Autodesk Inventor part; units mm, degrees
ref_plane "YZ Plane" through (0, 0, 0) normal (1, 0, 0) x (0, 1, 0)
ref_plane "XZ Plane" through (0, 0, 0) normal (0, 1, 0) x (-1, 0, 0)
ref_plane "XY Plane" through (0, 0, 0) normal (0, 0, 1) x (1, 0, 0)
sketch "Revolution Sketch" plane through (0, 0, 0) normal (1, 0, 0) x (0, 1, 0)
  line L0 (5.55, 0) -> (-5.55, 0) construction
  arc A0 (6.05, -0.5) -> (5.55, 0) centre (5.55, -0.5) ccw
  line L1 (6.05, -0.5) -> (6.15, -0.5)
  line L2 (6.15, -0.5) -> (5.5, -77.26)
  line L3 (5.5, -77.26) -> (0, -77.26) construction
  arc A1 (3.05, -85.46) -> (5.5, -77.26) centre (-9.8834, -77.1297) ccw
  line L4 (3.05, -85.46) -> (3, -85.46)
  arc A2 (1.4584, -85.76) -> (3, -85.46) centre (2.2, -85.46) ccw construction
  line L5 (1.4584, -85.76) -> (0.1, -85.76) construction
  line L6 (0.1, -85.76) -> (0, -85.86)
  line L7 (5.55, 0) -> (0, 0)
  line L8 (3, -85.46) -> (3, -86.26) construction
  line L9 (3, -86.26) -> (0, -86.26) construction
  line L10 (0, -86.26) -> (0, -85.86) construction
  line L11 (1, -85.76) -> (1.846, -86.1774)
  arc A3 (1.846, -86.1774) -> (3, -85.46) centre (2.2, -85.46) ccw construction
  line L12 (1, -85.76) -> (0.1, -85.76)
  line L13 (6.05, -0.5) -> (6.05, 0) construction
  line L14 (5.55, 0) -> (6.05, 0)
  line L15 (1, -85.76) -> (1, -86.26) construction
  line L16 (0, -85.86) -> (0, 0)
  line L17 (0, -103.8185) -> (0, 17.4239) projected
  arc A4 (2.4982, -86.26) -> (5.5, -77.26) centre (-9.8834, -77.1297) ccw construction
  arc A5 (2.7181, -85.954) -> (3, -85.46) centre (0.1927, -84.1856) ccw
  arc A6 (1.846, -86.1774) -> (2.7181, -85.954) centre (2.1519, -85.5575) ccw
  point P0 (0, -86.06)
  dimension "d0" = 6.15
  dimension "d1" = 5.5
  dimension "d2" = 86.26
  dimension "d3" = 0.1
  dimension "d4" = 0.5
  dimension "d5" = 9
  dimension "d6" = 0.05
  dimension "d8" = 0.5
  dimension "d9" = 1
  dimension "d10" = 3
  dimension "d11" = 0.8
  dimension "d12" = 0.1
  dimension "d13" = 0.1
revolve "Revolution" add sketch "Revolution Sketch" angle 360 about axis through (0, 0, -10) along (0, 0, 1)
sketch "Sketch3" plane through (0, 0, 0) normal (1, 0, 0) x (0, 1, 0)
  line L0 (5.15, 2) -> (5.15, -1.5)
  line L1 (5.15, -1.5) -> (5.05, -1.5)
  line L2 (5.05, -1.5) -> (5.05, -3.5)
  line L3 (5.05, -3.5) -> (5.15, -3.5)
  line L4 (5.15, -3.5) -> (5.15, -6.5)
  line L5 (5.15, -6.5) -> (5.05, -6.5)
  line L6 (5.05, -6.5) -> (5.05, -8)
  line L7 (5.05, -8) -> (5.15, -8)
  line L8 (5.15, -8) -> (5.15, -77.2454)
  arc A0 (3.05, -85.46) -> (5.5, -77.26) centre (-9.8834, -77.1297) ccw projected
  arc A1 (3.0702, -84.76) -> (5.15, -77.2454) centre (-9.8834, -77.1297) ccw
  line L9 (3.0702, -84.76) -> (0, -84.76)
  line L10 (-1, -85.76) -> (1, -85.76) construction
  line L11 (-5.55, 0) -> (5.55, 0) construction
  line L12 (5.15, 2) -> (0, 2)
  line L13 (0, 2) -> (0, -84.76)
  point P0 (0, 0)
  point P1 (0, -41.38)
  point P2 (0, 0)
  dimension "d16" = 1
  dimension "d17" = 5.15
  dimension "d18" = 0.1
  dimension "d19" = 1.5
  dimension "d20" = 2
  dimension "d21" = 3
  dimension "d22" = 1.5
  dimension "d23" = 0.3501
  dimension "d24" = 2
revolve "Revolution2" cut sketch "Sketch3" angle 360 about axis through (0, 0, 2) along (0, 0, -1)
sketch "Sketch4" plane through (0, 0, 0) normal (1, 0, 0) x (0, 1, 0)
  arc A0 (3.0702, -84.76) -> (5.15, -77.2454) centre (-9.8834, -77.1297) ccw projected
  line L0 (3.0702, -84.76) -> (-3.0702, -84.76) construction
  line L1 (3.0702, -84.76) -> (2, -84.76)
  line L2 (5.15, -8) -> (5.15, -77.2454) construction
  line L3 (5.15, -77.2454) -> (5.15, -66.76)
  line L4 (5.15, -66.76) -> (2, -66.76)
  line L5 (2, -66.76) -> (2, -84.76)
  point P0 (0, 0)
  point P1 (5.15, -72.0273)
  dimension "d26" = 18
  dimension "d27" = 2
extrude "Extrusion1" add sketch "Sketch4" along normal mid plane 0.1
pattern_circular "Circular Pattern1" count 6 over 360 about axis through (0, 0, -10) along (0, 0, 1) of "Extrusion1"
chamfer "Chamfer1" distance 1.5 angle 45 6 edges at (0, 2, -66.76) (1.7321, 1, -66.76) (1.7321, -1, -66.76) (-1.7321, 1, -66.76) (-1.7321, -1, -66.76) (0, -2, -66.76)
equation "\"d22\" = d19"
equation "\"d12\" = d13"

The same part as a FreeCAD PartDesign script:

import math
import FreeCAD as App
import Part
import Sketcher

V = App.Vector
Q = App.Units.Quantity


def edges_at(feature, points):
    """Names of the edges that pass closest to the given points."""
    edges = feature.Shape.Edges
    near = lambda p: min(range(len(edges)), key=lambda i: edges[i].distToShape(Part.Vertex(*p))[0])
    return sorted({f"Edge{near(p) + 1}" for p in points})

doc = App.newDocument("Part")
body = doc.addObject("PartDesign::Body", "Body")

# Sketch on YZ plane
sketch1 = body.newObject("Sketcher::SketchObject", "Sketch")
sketch1.AttachmentSupport = (doc.getObject("YZ_Plane"), [""])
sketch1.MapMode = "FlatFace"
sketch1.addGeometry([
    Part.LineSegment(V(6.15, -0.5, 0), V(6.05, -0.5, 0)),  # 0
    Part.ArcOfCircle(Part.Circle(V(5.55, -0.5, 0), V(0, 0, 1), 0.5), math.radians(0), math.radians(90)),  # 1
    Part.LineSegment(V(5.55, 0, 0), V(0, 0, 0)),  # 2
    Part.LineSegment(V(0, 0, 0), V(0, -85.86, 0)),  # 3
    Part.LineSegment(V(0, -85.86, 0), V(0.1, -85.76, 0)),  # 4
    Part.LineSegment(V(0.1, -85.76, 0), V(1, -85.76, 0)),  # 5
    Part.LineSegment(V(1, -85.76, 0), V(1.846, -86.177, 0)),  # 6
    Part.ArcOfCircle(Part.Circle(V(2.152, -85.558, 0), V(0, 0, 1), 0.691), math.radians(-116), math.radians(-35)),  # 7
    Part.ArcOfCircle(Part.Circle(V(0.19, -84.184, 0), V(0, 0, 1), 3.086), math.radians(-35), math.radians(-24.42)),  # 8
    Part.LineSegment(V(3, -85.46, 0), V(3.05, -85.46, 0)),  # 9
    Part.ArcOfCircle(Part.Circle(V(-9.883, -77.13, 0), V(0, 0, 1), 15.384), math.radians(-33), math.radians(0)),  # 10
    Part.LineSegment(V(5.5, -77.26, 0), V(6.15, -0.5, 0)),  # 11
], False)
sketch1.addConstraint([
    Sketcher.Constraint("Coincident", 0, 2, 1, 1),
    Sketcher.Constraint("Tangent", 1, 2, 2, 1),
    Sketcher.Constraint("Coincident", 2, 2, 3, 1),
    Sketcher.Constraint("Coincident", 3, 2, 4, 1),
    Sketcher.Constraint("Coincident", 4, 2, 5, 1),
    Sketcher.Constraint("Coincident", 5, 2, 6, 1),
    Sketcher.Constraint("Tangent", 6, 2, 7, 1),
    Sketcher.Constraint("Tangent", 7, 2, 8, 1),
    Sketcher.Constraint("Coincident", 8, 2, 9, 1),
    Sketcher.Constraint("Coincident", 9, 2, 10, 1),
    Sketcher.Constraint("Tangent", 10, 2, 11, 1),
    Sketcher.Constraint("Coincident", 11, 2, 0, 1),
    Sketcher.Constraint("Horizontal", 0),
    Sketcher.Constraint("Horizontal", 2),
    Sketcher.Constraint("Vertical", 3),
    Sketcher.Constraint("Horizontal", 5),
    Sketcher.Constraint("Horizontal", 9),
    Sketcher.Constraint("Coincident", 2, 2, -1, 1),
    Sketcher.Constraint("Horizontal", 1, 3, 0, 2),
    Sketcher.Constraint("Radius", 1, Q("0.5 mm")),
    Sketcher.Constraint("DistanceX", 0, 2, 0, 1, Q("0.1 mm")),
    Sketcher.Constraint("DistanceX", -1, 1, 5, 2, Q("1 mm")),
    Sketcher.Constraint("DistanceX", -1, 1, 8, 2, Q("3 mm")),
    Sketcher.Constraint("DistanceX", 9, 1, 9, 2, Q("0.05 mm")),
    Sketcher.Constraint("DistanceX", -1, 1, 4, 2, Q("0.1 mm")),
    Sketcher.Constraint("DistanceX", -1, 1, 10, 2, Q("5.5 mm")),
    Sketcher.Constraint("DistanceY", 3, 2, 4, 2, Q("0.1 mm")),
    Sketcher.Constraint("DistanceX", -1, 1, 11, 2, Q("6.15 mm")),
    Sketcher.Constraint("Radius", 10, Q("15.384 mm")),
    Sketcher.Constraint("DistanceY", 3, 2, 3, 1, Q("85.86 mm")),
    Sketcher.Constraint("Angle", 6, Q("-26.2608 deg")),
    Sketcher.Constraint("Radius", 7, Q("0.6913 mm")),
    Sketcher.Constraint("Radius", 8, Q("3.0858 mm")),
    Sketcher.Constraint("DistanceY", 5, 2, 8, 2, Q("0.3 mm")),
    Sketcher.Constraint("DistanceX", -1, 1, 7, 3, Q("2.152 mm")),
])
revolution = body.newObject("PartDesign::Revolution", "Revolution")
revolution.Profile = sketch1
revolution.ReferenceAxis = (sketch1, ["V_Axis"])
revolution.Angle = 360

# Sketch on YZ plane
sketch2 = body.newObject("Sketcher::SketchObject", "Sketch001")
sketch2.AttachmentSupport = (doc.getObject("YZ_Plane"), [""])
sketch2.MapMode = "FlatFace"
sketch2.addGeometry([
    Part.LineSegment(V(5.15, -1.5, 0), V(5.15, 2, 0)),  # 0
    Part.LineSegment(V(5.15, 2, 0), V(0, 2, 0)),  # 1
    Part.LineSegment(V(0, 2, 0), V(0, -84.76, 0)),  # 2
    Part.LineSegment(V(0, -84.76, 0), V(3.07, -84.76, 0)),  # 3
    Part.ArcOfCircle(Part.Circle(V(-9.88, -77.13, 0), V(0, 0, 1), 15.03), math.radians(-31), math.radians(0)),  # 4
    Part.LineSegment(V(5.15, -77.25, 0), V(5.15, -8, 0)),  # 5
    Part.LineSegment(V(5.15, -8, 0), V(5.05, -8, 0)),  # 6
    Part.LineSegment(V(5.05, -8, 0), V(5.05, -6.5, 0)),  # 7
    Part.LineSegment(V(5.05, -6.5, 0), V(5.15, -6.5, 0)),  # 8
    Part.LineSegment(V(5.15, -6.5, 0), V(5.15, -3.5, 0)),  # 9
    Part.LineSegment(V(5.15, -3.5, 0), V(5.05, -3.5, 0)),  # 10
    Part.LineSegment(V(5.05, -3.5, 0), V(5.05, -1.5, 0)),  # 11
    Part.LineSegment(V(5.05, -1.5, 0), V(5.15, -1.5, 0)),  # 12
], False)
sketch2.addConstraint([
    Sketcher.Constraint("Coincident", 0, 2, 1, 1),
    Sketcher.Constraint("Coincident", 1, 2, 2, 1),
    Sketcher.Constraint("Coincident", 2, 2, 3, 1),
    Sketcher.Constraint("Coincident", 3, 2, 4, 1),
    Sketcher.Constraint("Coincident", 4, 2, 5, 1),
    Sketcher.Constraint("Coincident", 5, 2, 6, 1),
    Sketcher.Constraint("Coincident", 6, 2, 7, 1),
    Sketcher.Constraint("Coincident", 7, 2, 8, 1),
    Sketcher.Constraint("Coincident", 8, 2, 9, 1),
    Sketcher.Constraint("Coincident", 9, 2, 10, 1),
    Sketcher.Constraint("Coincident", 10, 2, 11, 1),
    Sketcher.Constraint("Coincident", 11, 2, 12, 1),
    Sketcher.Constraint("Coincident", 12, 2, 0, 1),
    Sketcher.Constraint("Vertical", 0),
    Sketcher.Constraint("Horizontal", 1),
    Sketcher.Constraint("Vertical", 2),
    Sketcher.Constraint("Horizontal", 3),
    Sketcher.Constraint("Vertical", 5),
    Sketcher.Constraint("Horizontal", 6),
    Sketcher.Constraint("Vertical", 7),
    Sketcher.Constraint("Horizontal", 8),
    Sketcher.Constraint("Vertical", 9),
    Sketcher.Constraint("Horizontal", 10),
    Sketcher.Constraint("Vertical", 11),
    Sketcher.Constraint("Horizontal", 12),
    Sketcher.Constraint("PointOnObject", 1, 2, -2),
    Sketcher.Constraint("Vertical", 0, 2, 4, 2),
    Sketcher.Constraint("Vertical", 5, 2, 8, 2),
    Sketcher.Constraint("Vertical", 7, 2, 10, 2),
    Sketcher.Constraint("DistanceY", 9, 1, 9, 2, Q("3 mm")),
    Sketcher.Constraint("DistanceY", 11, 1, 11, 2, Q("2 mm")),
    Sketcher.Constraint("DistanceX", 6, 2, 6, 1, Q("0.1 mm")),
    Sketcher.Constraint("DistanceY", 7, 1, 7, 2, Q("1.5 mm")),
    Sketcher.Constraint("DistanceY", -1, 1, 0, 2, Q("2 mm")),
    Sketcher.Constraint("DistanceX", 1, 2, 1, 1, Q("5.15 mm")),
    Sketcher.Constraint("DistanceY", 11, 2, -1, 1, Q("1.5 mm")),
    Sketcher.Constraint("DistanceY", 2, 2, 2, 1, Q("86.76 mm")),
    Sketcher.Constraint("Radius", 4, Q("15.0339 mm")),
    Sketcher.Constraint("DistanceX", 3, 1, 3, 2, Q("3.0702 mm")),
    Sketcher.Constraint("DistanceY", 5, 1, 5, 2, Q("69.2454 mm")),
])
groove = body.newObject("PartDesign::Groove", "Groove")
groove.Profile = sketch2
groove.ReferenceAxis = (sketch2, ["V_Axis"])
groove.Angle = 360

# Sketch on YZ plane
sketch3 = body.newObject("Sketcher::SketchObject", "Sketch002")
sketch3.AttachmentSupport = (doc.getObject("YZ_Plane"), [""])
sketch3.MapMode = "FlatFace"
sketch3.addGeometry([
    Part.LineSegment(V(2, -84.8, 0), V(3.1, -84.8, 0)),  # 0
    Part.ArcOfCircle(Part.Circle(V(-9.9, -77.1, 0), V(0, 0, 1), 15), math.radians(-31), math.radians(0)),  # 1
    Part.LineSegment(V(5.2, -77.2, 0), V(5.2, -66.8, 0)),  # 2
    Part.LineSegment(V(5.2, -66.8, 0), V(2, -66.8, 0)),  # 3
    Part.LineSegment(V(2, -66.8, 0), V(2, -84.8, 0)),  # 4
], False)
sketch3.addConstraint([
    Sketcher.Constraint("Coincident", 0, 2, 1, 1),
    Sketcher.Constraint("Coincident", 1, 2, 2, 1),
    Sketcher.Constraint("Coincident", 2, 2, 3, 1),
    Sketcher.Constraint("Coincident", 3, 2, 4, 1),
    Sketcher.Constraint("Coincident", 4, 2, 0, 1),
    Sketcher.Constraint("Horizontal", 0),
    Sketcher.Constraint("Vertical", 2),
    Sketcher.Constraint("Horizontal", 3),
    Sketcher.Constraint("Vertical", 4),
    Sketcher.Constraint("DistanceY", 4, 2, 4, 1, Q("18 mm")),
    Sketcher.Constraint("DistanceX", -1, 1, 3, 2, Q("2 mm")),
    Sketcher.Constraint("DistanceX", 3, 2, 3, 1, Q("3.15 mm")),
    Sketcher.Constraint("Radius", 1, Q("15.0339 mm")),
    Sketcher.Constraint("DistanceY", 0, 2, -1, 1, Q("84.76 mm")),
    Sketcher.Constraint("DistanceX", 0, 1, 0, 2, Q("1.0702 mm")),
    Sketcher.Constraint("DistanceY", 2, 1, 2, 2, Q("10.4854 mm")),
])
pad1 = body.newObject("PartDesign::Pad", "Pad")
pad1.Profile = sketch3
pad1.Length = 0.1
pad1.Midplane = True
doc.recompute()

polarpattern = body.newObject("PartDesign::PolarPattern", "PolarPattern")
polarpattern.Originals = [pad1]
polarpattern.Axis = (doc.getObject("Z_Axis"), [""])
polarpattern.Angle = 360
polarpattern.Occurrences = 6
body.Tip = polarpattern
doc.recompute()

chamfer = body.newObject("PartDesign::Chamfer", "Chamfer")
chamfer.Base = (polarpattern, edges_at(polarpattern, [
    (0, 2, -66.76),
    (1.732, 1, -66.76),
    (1.732, -1, -66.76),
    (-1.732, 1, -66.76),
    (-1.732, -1, -66.76),
    (0, -2, -66.76),
]))
chamfer.Size = 1.5

doc.recompute()
